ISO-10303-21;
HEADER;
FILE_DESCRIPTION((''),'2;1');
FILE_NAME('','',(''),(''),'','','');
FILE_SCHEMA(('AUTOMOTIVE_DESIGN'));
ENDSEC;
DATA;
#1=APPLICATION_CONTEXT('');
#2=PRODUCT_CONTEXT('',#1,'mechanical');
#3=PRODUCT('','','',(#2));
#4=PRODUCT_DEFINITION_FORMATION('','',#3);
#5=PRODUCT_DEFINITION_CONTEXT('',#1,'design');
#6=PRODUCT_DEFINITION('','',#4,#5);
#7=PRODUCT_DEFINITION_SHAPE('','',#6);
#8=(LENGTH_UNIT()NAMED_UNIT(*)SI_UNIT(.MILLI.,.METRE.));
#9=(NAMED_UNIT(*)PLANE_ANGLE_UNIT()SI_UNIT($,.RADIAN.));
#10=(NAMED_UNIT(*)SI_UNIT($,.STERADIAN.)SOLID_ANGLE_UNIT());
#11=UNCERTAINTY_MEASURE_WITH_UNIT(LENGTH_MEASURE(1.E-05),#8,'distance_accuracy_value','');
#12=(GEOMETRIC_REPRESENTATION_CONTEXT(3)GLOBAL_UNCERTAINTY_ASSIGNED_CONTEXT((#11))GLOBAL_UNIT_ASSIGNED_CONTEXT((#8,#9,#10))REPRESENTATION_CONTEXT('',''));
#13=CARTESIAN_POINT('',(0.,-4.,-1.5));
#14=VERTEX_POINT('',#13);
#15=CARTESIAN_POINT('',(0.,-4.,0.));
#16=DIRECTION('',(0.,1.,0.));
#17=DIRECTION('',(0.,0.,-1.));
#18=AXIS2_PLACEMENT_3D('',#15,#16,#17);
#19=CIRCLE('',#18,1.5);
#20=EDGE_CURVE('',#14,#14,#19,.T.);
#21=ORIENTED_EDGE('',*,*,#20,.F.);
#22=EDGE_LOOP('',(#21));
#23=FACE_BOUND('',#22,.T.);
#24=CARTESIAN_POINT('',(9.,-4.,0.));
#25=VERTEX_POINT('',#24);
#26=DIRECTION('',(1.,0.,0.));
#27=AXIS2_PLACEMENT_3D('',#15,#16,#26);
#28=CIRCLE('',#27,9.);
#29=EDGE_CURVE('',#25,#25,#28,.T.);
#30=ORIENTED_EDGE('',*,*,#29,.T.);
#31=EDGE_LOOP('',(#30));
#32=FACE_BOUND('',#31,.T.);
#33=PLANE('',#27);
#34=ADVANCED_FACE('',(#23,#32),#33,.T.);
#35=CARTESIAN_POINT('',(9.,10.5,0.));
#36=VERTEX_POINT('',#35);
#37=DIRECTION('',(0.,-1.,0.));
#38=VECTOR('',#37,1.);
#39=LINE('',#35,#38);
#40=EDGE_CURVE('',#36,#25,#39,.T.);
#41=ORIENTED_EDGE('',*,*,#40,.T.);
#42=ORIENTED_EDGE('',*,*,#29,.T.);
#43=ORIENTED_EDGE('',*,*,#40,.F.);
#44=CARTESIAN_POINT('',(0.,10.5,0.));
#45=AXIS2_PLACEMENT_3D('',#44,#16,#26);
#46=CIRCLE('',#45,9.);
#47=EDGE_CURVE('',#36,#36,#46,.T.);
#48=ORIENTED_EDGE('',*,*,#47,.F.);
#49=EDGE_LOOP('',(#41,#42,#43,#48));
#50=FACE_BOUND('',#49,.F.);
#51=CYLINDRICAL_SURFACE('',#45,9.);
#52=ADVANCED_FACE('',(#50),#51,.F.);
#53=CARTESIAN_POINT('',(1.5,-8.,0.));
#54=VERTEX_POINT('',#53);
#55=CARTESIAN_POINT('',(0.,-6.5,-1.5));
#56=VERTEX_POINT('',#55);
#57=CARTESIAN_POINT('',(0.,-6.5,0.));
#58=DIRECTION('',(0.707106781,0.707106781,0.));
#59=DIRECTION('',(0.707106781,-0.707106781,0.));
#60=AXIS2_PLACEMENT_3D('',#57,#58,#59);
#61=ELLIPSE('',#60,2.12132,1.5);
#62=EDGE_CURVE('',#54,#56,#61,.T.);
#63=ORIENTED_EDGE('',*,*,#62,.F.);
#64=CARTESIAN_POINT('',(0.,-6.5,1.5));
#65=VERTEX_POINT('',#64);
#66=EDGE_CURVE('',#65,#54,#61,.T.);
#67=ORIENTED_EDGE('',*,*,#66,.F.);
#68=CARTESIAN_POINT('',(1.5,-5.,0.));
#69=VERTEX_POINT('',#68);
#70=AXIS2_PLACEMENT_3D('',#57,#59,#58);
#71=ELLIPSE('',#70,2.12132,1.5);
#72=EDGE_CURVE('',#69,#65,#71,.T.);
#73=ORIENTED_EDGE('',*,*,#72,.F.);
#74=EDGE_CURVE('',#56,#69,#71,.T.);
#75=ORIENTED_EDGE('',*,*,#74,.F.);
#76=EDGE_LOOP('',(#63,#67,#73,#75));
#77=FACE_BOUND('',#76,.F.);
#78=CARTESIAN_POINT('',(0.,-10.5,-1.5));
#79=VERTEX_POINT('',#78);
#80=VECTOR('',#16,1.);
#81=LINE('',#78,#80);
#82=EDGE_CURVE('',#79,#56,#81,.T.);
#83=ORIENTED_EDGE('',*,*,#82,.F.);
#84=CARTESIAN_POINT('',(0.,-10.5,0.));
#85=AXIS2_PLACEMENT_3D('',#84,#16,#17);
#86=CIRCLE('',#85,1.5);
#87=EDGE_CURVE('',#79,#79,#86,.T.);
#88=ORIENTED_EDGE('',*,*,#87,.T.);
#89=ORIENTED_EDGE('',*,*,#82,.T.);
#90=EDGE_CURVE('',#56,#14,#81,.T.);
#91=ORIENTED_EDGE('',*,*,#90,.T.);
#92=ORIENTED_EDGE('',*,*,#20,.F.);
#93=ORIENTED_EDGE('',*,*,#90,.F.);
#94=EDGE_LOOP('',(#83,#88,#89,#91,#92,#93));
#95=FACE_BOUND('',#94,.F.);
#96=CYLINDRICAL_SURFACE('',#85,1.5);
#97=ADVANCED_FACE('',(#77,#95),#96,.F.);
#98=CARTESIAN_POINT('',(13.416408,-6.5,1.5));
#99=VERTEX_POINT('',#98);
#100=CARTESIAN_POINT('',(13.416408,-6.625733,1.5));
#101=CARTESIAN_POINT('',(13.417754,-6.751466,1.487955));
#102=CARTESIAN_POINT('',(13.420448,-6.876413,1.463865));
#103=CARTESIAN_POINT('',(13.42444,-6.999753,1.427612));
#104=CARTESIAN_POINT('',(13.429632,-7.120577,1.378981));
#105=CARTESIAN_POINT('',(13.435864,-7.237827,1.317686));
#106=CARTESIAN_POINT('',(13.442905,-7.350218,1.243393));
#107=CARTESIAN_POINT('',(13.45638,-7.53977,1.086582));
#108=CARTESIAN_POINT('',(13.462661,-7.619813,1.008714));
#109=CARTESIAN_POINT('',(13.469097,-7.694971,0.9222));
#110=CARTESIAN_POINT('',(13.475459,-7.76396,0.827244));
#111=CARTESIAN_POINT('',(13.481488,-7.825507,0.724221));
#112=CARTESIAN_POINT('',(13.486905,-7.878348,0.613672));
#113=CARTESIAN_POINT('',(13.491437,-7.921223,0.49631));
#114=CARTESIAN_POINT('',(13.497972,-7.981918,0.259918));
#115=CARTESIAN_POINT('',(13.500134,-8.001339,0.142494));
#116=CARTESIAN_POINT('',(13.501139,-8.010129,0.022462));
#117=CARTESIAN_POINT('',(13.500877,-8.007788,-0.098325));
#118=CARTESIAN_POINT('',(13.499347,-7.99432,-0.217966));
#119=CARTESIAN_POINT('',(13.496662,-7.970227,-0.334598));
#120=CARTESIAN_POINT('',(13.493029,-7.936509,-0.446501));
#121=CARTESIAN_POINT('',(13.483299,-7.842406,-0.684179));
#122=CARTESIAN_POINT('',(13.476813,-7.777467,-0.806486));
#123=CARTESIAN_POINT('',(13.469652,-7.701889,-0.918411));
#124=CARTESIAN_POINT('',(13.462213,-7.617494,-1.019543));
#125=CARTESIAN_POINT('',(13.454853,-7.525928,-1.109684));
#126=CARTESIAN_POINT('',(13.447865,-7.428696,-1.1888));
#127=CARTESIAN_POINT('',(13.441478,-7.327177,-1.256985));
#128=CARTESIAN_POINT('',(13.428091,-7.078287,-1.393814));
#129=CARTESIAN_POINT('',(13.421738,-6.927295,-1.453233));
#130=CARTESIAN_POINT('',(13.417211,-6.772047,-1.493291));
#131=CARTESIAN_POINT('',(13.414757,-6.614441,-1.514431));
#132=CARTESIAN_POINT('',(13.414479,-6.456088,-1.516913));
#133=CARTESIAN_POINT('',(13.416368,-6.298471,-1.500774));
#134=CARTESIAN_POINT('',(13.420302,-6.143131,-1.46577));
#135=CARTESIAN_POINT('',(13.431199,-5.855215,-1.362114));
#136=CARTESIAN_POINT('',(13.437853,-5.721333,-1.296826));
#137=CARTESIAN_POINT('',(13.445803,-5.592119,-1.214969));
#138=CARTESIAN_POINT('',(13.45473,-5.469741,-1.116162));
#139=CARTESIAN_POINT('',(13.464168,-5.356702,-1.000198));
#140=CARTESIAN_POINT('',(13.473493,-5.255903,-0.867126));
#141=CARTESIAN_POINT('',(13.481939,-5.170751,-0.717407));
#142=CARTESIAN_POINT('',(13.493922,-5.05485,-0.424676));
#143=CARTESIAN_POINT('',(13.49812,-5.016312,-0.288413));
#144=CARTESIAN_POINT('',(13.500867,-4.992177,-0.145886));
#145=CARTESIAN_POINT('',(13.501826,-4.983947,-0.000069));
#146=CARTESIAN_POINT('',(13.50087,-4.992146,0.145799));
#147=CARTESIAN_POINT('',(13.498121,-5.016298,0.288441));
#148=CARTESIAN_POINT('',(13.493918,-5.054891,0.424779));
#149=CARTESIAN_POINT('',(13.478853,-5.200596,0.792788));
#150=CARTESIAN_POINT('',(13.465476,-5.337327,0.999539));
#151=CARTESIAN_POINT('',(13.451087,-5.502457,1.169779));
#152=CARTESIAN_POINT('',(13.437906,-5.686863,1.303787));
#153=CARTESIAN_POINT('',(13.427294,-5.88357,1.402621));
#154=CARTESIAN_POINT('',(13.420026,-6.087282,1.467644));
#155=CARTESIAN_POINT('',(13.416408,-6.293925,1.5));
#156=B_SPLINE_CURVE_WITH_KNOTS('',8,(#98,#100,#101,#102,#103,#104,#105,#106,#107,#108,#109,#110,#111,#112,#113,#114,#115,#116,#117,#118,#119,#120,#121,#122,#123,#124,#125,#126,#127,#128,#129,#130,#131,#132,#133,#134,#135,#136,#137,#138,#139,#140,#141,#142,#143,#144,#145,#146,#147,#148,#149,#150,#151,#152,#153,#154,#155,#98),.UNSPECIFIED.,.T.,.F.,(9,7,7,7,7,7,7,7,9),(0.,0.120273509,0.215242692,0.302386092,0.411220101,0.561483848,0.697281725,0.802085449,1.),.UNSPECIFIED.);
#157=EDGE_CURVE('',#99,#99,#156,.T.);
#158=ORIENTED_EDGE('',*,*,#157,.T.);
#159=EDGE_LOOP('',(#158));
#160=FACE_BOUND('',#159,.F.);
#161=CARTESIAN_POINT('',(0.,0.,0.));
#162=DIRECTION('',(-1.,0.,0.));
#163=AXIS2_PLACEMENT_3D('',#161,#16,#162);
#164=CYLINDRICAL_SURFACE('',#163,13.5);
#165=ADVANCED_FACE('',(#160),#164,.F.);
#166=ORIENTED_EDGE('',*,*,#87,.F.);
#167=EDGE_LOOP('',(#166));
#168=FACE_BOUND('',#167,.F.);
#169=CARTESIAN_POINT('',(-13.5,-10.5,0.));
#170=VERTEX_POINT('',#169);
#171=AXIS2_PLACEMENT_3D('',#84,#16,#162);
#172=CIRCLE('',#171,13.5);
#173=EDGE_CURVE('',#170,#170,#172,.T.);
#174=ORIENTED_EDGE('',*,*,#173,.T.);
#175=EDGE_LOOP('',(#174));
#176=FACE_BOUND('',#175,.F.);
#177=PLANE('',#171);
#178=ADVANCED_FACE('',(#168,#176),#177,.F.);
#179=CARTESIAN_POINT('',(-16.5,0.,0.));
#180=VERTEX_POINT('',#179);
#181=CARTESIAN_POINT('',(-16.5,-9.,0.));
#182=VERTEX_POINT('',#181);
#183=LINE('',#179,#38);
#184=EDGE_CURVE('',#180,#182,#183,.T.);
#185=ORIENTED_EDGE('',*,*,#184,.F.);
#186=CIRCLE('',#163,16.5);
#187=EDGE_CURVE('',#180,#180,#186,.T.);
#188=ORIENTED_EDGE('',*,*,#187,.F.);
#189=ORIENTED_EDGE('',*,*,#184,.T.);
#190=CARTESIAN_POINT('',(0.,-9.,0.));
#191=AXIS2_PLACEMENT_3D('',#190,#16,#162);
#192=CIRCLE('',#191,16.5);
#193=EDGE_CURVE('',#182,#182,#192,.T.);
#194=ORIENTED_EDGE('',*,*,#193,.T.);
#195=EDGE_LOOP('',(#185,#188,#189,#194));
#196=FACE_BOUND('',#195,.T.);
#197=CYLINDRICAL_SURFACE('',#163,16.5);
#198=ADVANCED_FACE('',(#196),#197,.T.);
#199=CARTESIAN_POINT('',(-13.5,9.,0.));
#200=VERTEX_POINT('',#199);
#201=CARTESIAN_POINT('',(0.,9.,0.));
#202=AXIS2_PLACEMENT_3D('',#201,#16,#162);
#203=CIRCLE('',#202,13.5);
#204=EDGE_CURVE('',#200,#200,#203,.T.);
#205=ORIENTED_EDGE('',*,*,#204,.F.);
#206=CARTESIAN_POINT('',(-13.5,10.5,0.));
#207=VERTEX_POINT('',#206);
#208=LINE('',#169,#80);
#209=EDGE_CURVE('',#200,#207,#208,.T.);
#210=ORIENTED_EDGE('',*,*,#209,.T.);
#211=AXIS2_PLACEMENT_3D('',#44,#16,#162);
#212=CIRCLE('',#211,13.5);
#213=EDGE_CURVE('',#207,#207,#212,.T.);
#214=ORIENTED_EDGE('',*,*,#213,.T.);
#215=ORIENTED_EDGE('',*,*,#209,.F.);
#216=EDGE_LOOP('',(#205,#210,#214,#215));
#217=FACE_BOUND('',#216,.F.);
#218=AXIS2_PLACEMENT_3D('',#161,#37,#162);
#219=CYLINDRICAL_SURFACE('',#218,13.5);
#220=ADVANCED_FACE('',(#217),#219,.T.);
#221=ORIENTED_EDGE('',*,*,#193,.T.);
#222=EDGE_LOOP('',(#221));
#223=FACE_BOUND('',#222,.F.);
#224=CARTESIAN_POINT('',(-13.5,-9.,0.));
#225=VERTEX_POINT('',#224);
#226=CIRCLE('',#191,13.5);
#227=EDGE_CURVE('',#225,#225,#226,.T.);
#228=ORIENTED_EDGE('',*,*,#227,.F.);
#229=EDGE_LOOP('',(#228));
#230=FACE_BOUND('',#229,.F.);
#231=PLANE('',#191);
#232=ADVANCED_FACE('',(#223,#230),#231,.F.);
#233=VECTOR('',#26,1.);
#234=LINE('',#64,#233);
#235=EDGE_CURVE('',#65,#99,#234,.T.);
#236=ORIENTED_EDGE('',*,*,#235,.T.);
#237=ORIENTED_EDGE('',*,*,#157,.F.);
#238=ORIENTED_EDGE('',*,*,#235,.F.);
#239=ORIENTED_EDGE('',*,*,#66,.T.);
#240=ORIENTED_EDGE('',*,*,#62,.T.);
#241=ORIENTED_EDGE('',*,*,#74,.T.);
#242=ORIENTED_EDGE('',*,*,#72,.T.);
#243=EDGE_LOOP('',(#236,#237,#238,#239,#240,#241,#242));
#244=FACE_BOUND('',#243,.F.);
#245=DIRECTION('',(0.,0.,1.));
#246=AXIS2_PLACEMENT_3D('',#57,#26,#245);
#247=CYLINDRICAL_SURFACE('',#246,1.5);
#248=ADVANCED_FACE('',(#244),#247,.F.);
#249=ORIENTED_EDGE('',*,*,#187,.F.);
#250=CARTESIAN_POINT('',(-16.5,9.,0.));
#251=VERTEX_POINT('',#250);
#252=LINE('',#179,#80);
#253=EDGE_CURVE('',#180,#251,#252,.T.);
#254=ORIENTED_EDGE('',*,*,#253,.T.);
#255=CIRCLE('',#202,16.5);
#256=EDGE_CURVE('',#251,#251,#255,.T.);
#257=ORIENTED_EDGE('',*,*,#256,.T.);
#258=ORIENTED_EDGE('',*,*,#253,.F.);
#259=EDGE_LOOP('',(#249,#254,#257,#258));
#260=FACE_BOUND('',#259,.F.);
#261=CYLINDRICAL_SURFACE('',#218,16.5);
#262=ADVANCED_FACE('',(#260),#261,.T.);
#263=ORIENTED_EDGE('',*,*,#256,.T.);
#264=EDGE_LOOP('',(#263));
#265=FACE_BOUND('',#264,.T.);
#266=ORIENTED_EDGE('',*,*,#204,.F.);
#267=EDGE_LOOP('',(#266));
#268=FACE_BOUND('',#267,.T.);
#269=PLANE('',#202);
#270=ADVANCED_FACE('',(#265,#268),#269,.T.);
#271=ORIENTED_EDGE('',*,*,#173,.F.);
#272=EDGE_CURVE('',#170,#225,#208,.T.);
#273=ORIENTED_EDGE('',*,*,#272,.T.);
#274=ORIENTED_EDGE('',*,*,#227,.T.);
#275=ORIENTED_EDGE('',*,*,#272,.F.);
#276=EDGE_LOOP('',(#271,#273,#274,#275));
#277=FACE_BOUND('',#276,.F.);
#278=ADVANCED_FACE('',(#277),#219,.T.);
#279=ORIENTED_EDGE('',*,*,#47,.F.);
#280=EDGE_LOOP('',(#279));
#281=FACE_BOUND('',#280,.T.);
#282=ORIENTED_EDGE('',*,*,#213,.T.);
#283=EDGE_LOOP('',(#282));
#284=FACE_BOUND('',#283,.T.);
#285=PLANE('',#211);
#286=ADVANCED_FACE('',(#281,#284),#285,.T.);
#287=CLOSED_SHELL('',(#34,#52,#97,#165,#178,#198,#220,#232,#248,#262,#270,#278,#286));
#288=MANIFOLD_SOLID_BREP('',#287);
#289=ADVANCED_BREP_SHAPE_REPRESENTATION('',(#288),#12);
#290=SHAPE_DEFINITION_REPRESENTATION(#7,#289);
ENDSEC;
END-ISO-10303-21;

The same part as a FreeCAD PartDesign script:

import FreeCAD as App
import Part
import Sketcher

V = App.Vector

doc = App.newDocument("Part")
params = doc.addObject("Spreadsheet::Sheet", "Params")
for row, (alias, value) in enumerate([
    ("sketch1_diameter", "27 mm"),
    ("pad1_length", "21 mm"),
    ("sketch2_diameter", "3 mm"),
    ("hole_diameter", "3 mm"),
    ("sketch3_diameter", "33 mm"),
    ("sketch3_diameter2", "27 mm"),
    ("pad2_length", "18 mm"),
    ("sketch4_diameter", "18 mm"),
    ("pocket1_length", "14.5 mm"),
    ("sketch5_diameter", "3 mm"),
    ("hole2_diameter", "3 mm"),
], start=1):
    params.set(f"A{row}", alias)
    params.set(f"B{row}", "=" + value)
    params.setAlias(f"B{row}", alias)

body = doc.addObject("PartDesign::Body", "Body")

sketch1 = body.newObject("Sketcher::SketchObject", "Sketch")
sketch1.AttachmentSupport = (doc.getObject("XZ_Plane"), [""])
sketch1.MapMode = "FlatFace"
sketch1.addGeometry(Part.Circle(V(0, 0, 0), V(0, 0, 1), 13.5), False)
sketch1.addConstraint(Sketcher.Constraint("Coincident", 0, 3, -1, 1))
sketch1.addConstraint(Sketcher.Constraint("Diameter", 0, 27.0))
sketch1.setExpression("Constraints[1]", "Params.sketch1_diameter")
pad1 = body.newObject("PartDesign::Pad", "Pad")
pad1.Profile = sketch1
pad1.setExpression("Length", "Params.pad1_length")
pad1.Midplane = True

sketch2 = body.newObject("Sketcher::SketchObject", "Sketch001")
sketch2.AttachmentSupport = (doc.getObject("YZ_Plane"), [""])
sketch2.MapMode = "FlatFace"
sketch2.addGeometry(Part.Circle(V(-6.5, 0, 0), V(0, 0, 1), 1.5), False)
sketch2.addConstraint(Sketcher.Constraint("PointOnObject", 0, 3, -1))
sketch2.addConstraint(Sketcher.Constraint("Diameter", 0, 3.0))
sketch2.addConstraint(Sketcher.Constraint("DistanceX", 0, 3, -1, 1, 6.5))
sketch2.setExpression("Constraints[1]", "Params.sketch2_diameter")
doc.recompute()
hole = body.newObject("PartDesign::Hole", "Hole")
hole.Profile = sketch2
hole.ThreadType = "None"
hole.setExpression("Diameter", "Params.hole_diameter")
hole.DepthType = "ThroughAll"
hole.Reversed = True

sketch3 = body.newObject("Sketcher::SketchObject", "Sketch002")
sketch3.AttachmentSupport = (doc.getObject("XZ_Plane"), [""])
sketch3.MapMode = "FlatFace"
sketch3.addGeometry(Part.Circle(V(0, 0, 0), V(0, 0, 1), 16.5), False)
sketch3.addGeometry(Part.Circle(V(0, 0, 0), V(0, 0, 1), 13.5), False)
sketch3.addConstraint(Sketcher.Constraint("Coincident", 0, 3, -1, 1))
sketch3.addConstraint(Sketcher.Constraint("Coincident", 1, 3, -1, 1))
sketch3.addConstraint(Sketcher.Constraint("Diameter", 0, 33.0))
sketch3.addConstraint(Sketcher.Constraint("Diameter", 1, 27.0))
sketch3.setExpression("Constraints[2]", "Params.sketch3_diameter")
sketch3.setExpression("Constraints[3]", "Params.sketch3_diameter2")
pad2 = body.newObject("PartDesign::Pad", "Pad001")
pad2.Profile = sketch3
pad2.setExpression("Length", "Params.pad2_length")
pad2.Midplane = True

sketch4 = body.newObject("Sketcher::SketchObject", "Sketch003")
sketch4.AttachmentSupport = (doc.getObject("XZ_Plane"), [""])
sketch4.MapMode = "FlatFace"
sketch4.AttachmentOffset = App.Placement(V(0, 0, -10.5), App.Rotation())
sketch4.addGeometry(Part.Circle(V(0, 0, 0), V(0, 0, 1), 9), False)
sketch4.addConstraint(Sketcher.Constraint("Coincident", 0, 3, -1, 1))
sketch4.addConstraint(Sketcher.Constraint("Diameter", 0, 18.0))
sketch4.setExpression("Constraints[1]", "Params.sketch4_diameter")
pocket1 = body.newObject("PartDesign::Pocket", "Pocket")
pocket1.Profile = sketch4
pocket1.setExpression("Length", "Params.pocket1_length")
pocket1.Reversed = True

sketch5 = body.newObject("Sketcher::SketchObject", "Sketch004")
sketch5.AttachmentSupport = (doc.getObject("XZ_Plane"), [""])
sketch5.MapMode = "FlatFace"
sketch5.AttachmentOffset = App.Placement(V(0, 0, 10.5), App.Rotation())
sketch5.addGeometry(Part.Circle(V(0, 0, 0), V(0, 0, 1), 1.5), False)
sketch5.addConstraint(Sketcher.Constraint("Coincident", 0, 3, -1, 1))
sketch5.addConstraint(Sketcher.Constraint("Diameter", 0, 3.0))
sketch5.setExpression("Constraints[1]", "Params.sketch5_diameter")
doc.recompute()
hole2 = body.newObject("PartDesign::Hole", "Hole001")
hole2.Profile = sketch5
hole2.ThreadType = "None"
hole2.setExpression("Diameter", "Params.hole2_diameter")
hole2.DepthType = "ThroughAll"

doc.recompute()
